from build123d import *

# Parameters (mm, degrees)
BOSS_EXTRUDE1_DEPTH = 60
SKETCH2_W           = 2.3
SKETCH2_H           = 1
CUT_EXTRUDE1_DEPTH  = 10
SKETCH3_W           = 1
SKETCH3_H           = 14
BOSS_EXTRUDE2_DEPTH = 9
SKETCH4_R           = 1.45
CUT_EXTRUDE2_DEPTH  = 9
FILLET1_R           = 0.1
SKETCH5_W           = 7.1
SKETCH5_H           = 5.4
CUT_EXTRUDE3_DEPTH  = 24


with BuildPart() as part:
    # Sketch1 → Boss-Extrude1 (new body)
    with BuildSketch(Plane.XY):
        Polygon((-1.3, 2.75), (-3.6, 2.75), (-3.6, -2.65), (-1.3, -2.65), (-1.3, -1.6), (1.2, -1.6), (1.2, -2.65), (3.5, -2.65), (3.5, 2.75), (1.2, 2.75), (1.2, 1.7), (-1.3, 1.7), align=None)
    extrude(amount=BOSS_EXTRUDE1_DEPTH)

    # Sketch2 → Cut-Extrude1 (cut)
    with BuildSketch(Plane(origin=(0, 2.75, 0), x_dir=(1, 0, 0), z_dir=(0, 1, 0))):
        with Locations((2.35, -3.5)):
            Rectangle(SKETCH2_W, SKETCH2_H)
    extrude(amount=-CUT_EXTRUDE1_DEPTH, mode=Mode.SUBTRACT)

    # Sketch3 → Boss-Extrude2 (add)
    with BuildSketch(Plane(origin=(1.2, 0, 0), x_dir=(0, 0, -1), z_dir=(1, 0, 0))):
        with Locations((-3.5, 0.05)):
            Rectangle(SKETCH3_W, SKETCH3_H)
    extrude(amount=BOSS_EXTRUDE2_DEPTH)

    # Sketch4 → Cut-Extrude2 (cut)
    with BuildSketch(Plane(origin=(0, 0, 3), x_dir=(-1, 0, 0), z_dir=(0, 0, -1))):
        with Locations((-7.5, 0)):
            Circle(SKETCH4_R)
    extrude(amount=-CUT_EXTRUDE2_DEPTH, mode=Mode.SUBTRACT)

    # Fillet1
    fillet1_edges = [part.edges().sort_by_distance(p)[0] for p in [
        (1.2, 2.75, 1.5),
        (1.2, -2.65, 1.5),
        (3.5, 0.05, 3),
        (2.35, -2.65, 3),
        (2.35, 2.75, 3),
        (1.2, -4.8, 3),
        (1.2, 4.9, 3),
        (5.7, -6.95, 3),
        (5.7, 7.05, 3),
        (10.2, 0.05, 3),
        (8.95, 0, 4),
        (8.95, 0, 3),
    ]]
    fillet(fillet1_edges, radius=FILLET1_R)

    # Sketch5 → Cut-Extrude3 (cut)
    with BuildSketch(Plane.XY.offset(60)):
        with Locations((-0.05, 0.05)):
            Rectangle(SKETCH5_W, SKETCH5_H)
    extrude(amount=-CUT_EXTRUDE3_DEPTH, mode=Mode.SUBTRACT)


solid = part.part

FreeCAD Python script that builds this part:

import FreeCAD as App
import Part
import Sketcher
from FreeCAD import Vector
Q = App.Units.Quantity


def edges_at(feature, points):
    """Names of the edges that pass closest to the given points."""
    edges = feature.Shape.Edges
    near = lambda p: min(range(len(edges)), key=lambda i: edges[i].distToShape(Part.Vertex(*p))[0])
    return sorted({f"Edge{near(p) + 1}" for p in points})

doc = App.newDocument("Part")
body = doc.addObject("PartDesign::Body", "Body")

sketch1 = body.newObject("Sketcher::SketchObject", "Sketch")
sketch1.AttachmentSupport = (doc.getObject("XY_Plane"), [""])
sketch1.MapMode = "FlatFace"
sketch1.addGeometry(Part.LineSegment(Vector(-1.3, 2.75, 0), Vector(-3.6, 2.75, 0)), False)
sketch1.addGeometry(Part.LineSegment(Vector(-3.6, 2.75, 0), Vector(-3.6, -2.65, 0)), False)
sketch1.addGeometry(Part.LineSegment(Vector(-3.6, -2.65, 0), Vector(-1.3, -2.65, 0)), False)
sketch1.addGeometry(Part.LineSegment(Vector(-1.3, -2.65, 0), Vector(-1.3, -1.6, 0)), False)
sketch1.addGeometry(Part.LineSegment(Vector(-1.3, -1.6, 0), Vector(1.2, -1.6, 0)), False)
sketch1.addGeometry(Part.LineSegment(Vector(1.2, -1.6, 0), Vector(1.2, -2.65, 0)), False)
sketch1.addGeometry(Part.LineSegment(Vector(1.2, -2.65, 0), Vector(3.5, -2.65, 0)), False)
sketch1.addGeometry(Part.LineSegment(Vector(3.5, -2.65, 0), Vector(3.5, 2.75, 0)), False)
sketch1.addGeometry(Part.LineSegment(Vector(3.5, 2.75, 0), Vector(1.2, 2.75, 0)), False)
sketch1.addGeometry(Part.LineSegment(Vector(1.2, 2.75, 0), Vector(1.2, 1.7, 0)), False)
sketch1.addGeometry(Part.LineSegment(Vector(1.2, 1.7, 0), Vector(-1.3, 1.7, 0)), False)
sketch1.addGeometry(Part.LineSegment(Vector(-1.3, 1.7, 0), Vector(-1.3, 2.75, 0)), False)
sketch1.addConstraint(Sketcher.Constraint("Coincident", 0, 2, 1, 1))
sketch1.addConstraint(Sketcher.Constraint("Coincident", 1, 2, 2, 1))
sketch1.addConstraint(Sketcher.Constraint("Coincident", 2, 2, 3, 1))
sketch1.addConstraint(Sketcher.Constraint("Coincident", 3, 2, 4, 1))
sketch1.addConstraint(Sketcher.Constraint("Coincident", 4, 2, 5, 1))
sketch1.addConstraint(Sketcher.Constraint("Coincident", 5, 2, 6, 1))
sketch1.addConstraint(Sketcher.Constraint("Coincident", 6, 2, 7, 1))
sketch1.addConstraint(Sketcher.Constraint("Coincident", 7, 2, 8, 1))
sketch1.addConstraint(Sketcher.Constraint("Coincident", 8, 2, 9, 1))
sketch1.addConstraint(Sketcher.Constraint("Coincident", 9, 2, 10, 1))
sketch1.addConstraint(Sketcher.Constraint("Coincident", 10, 2, 11, 1))
sketch1.addConstraint(Sketcher.Constraint("Coincident", 11, 2, 0, 1))
sketch1.addConstraint(Sketcher.Constraint("Horizontal", 0))
sketch1.addConstraint(Sketcher.Constraint("Vertical", 1))
sketch1.addConstraint(Sketcher.Constraint("Horizontal", 2))
sketch1.addConstraint(Sketcher.Constraint("Vertical", 3))
sketch1.addConstraint(Sketcher.Constraint("Horizontal", 4))
sketch1.addConstraint(Sketcher.Constraint("Vertical", 5))
sketch1.addConstraint(Sketcher.Constraint("Horizontal", 6))
sketch1.addConstraint(Sketcher.Constraint("Vertical", 7))
sketch1.addConstraint(Sketcher.Constraint("Horizontal", 8))
sketch1.addConstraint(Sketcher.Constraint("Vertical", 9))
sketch1.addConstraint(Sketcher.Constraint("Horizontal", 10))
sketch1.addConstraint(Sketcher.Constraint("Vertical", 11))
sketch1.addConstraint(Sketcher.Constraint("Horizontal", 2, 2, 5, 2))
sketch1.addConstraint(Sketcher.Constraint("Horizontal", 0, 2, 7, 2))
sketch1.addConstraint(Sketcher.Constraint("Vertical", 5, 2, 8, 2))
sketch1.addConstraint(Sketcher.Constraint("Vertical", 3, 2, 10, 2))
sketch1.addConstraint(Sketcher.Constraint("Equal", 2, 6))
sketch1.addConstraint(Sketcher.Constraint("Equal", 5, 9))
sketch1.addConstraint(Sketcher.Constraint("DistanceX", 0, 2, 0, 1, Q("2.3 mm")))
sketch1.addConstraint(Sketcher.Constraint("DistanceX", 4, 1, 4, 2, Q("2.5 mm")))
sketch1.addConstraint(Sketcher.Constraint("DistanceY", 1, 2, 1, 1, Q("5.4 mm")))
sketch1.addConstraint(Sketcher.Constraint("DistanceY", 3, 1, 3, 2, Q("1.05 mm")))
sketch1.addConstraint(Sketcher.Constraint("DistanceX", 0, 2, -1, 1, Q("3.6 mm")))
sketch1.addConstraint(Sketcher.Constraint("DistanceY", 3, 2, -1, 1, Q("1.6 mm")))
pad1 = body.newObject("PartDesign::Pad", "Pad")
pad1.Profile = sketch1
pad1.Length = 60

sketch2 = body.newObject("Sketcher::SketchObject", "Sketch001")
sketch2.AttachmentSupport = (doc.getObject("XZ_Plane"), [""])
sketch2.MapMode = "FlatFace"
sketch2.AttachmentOffset = App.Placement(Vector(0, 0, -2.75), App.Rotation())
sketch2.addGeometry(Part.LineSegment(Vector(1.2, 3, 0), Vector(1.2, 4, 0)), False)
sketch2.addGeometry(Part.LineSegment(Vector(1.2, 4, 0), Vector(3.5, 4, 0)), False)
sketch2.addGeometry(Part.LineSegment(Vector(3.5, 4, 0), Vector(3.5, 3, 0)), False)
sketch2.addGeometry(Part.LineSegment(Vector(3.5, 3, 0), Vector(1.2, 3, 0)), False)
sketch2.addConstraint(Sketcher.Constraint("Coincident", 0, 2, 1, 1))
sketch2.addConstraint(Sketcher.Constraint("Coincident", 1, 2, 2, 1))
sketch2.addConstraint(Sketcher.Constraint("Coincident", 2, 2, 3, 1))
sketch2.addConstraint(Sketcher.Constraint("Coincident", 3, 2, 0, 1))
sketch2.addConstraint(Sketcher.Constraint("Vertical", 0))
sketch2.addConstraint(Sketcher.Constraint("Horizontal", 1))
sketch2.addConstraint(Sketcher.Constraint("Vertical", 2))
sketch2.addConstraint(Sketcher.Constraint("Horizontal", 3))
sketch2.addConstraint(Sketcher.Constraint("DistanceY", 0, 1, 0, 2, Q("1 mm")))
sketch2.addConstraint(Sketcher.Constraint("DistanceX", 1, 1, 1, 2, Q("2.3 mm")))
sketch2.addConstraint(Sketcher.Constraint("DistanceY", -1, 1, 0, 2, Q("4 mm")))
sketch2.addConstraint(Sketcher.Constraint("DistanceX", -1, 1, 0, 2, Q("1.2 mm")))
pocket1 = body.newObject("PartDesign::Pocket", "Pocket")
pocket1.Profile = sketch2
pocket1.Length = 10
pocket1.Reversed = True

sketch3 = body.newObject("Sketcher::SketchObject", "Sketch002")
sketch3.AttachmentSupport = (doc.getObject("YZ_Plane"), [""])
sketch3.MapMode = "FlatFace"
sketch3.AttachmentOffset = App.Placement(Vector(0, 0, 1.2), App.Rotation())
sketch3.addGeometry(Part.LineSegment(Vector(7.05, 4, 0), Vector(-6.95, 4, 0)), False)
sketch3.addGeometry(Part.LineSegment(Vector(-6.95, 4, 0), Vector(-6.95, 3, 0)), False)
sketch3.addGeometry(Part.LineSegment(Vector(-6.95, 3, 0), Vector(7.05, 3, 0)), False)
sketch3.addGeometry(Part.LineSegment(Vector(7.05, 3, 0), Vector(7.05, 4, 0)), False)
sketch3.addConstraint(Sketcher.Constraint("Coincident", 0, 2, 1, 1))
sketch3.addConstraint(Sketcher.Constraint("Coincident", 1, 2, 2, 1))
sketch3.addConstraint(Sketcher.Constraint("Coincident", 2, 2, 3, 1))
sketch3.addConstraint(Sketcher.Constraint("Coincident", 3, 2, 0, 1))
sketch3.addConstraint(Sketcher.Constraint("Horizontal", 0))
sketch3.addConstraint(Sketcher.Constraint("Vertical", 1))
sketch3.addConstraint(Sketcher.Constraint("Horizontal", 2))
sketch3.addConstraint(Sketcher.Constraint("Vertical", 3))
sketch3.addConstraint(Sketcher.Constraint("DistanceX", 0, 2, 0, 1, Q("14 mm")))
sketch3.addConstraint(Sketcher.Constraint("DistanceY", 1, 2, 1, 1, Q("1 mm")))
sketch3.addConstraint(Sketcher.Constraint("DistanceY", -1, 1, 0, 2, Q("4 mm")))
sketch3.addConstraint(Sketcher.Constraint("DistanceX", 0, 2, -1, 1, Q("6.95 mm")))
pad2 = body.newObject("PartDesign::Pad", "Pad001")
pad2.Profile = sketch3
pad2.Length = 9

sketch4 = body.newObject("Sketcher::SketchObject", "Sketch003")
sketch4.AttachmentSupport = (doc.getObject("XY_Plane"), [""])
sketch4.MapMode = "FlatFace"
sketch4.AttachmentOffset = App.Placement(Vector(0, 0, 3), App.Rotation())
sketch4.addGeometry(Part.Circle(Vector(7.5, 0, 0), Vector(0, 0, 1), 1.45), False)
sketch4.addConstraint(Sketcher.Constraint("PointOnObject", 0, 3, -1))
sketch4.addConstraint(Sketcher.Constraint("Diameter", 0, Q("2.9 mm")))
sketch4.addConstraint(Sketcher.Constraint("DistanceX", -1, 1, 0, 3, Q("7.5 mm")))
pocket2 = body.newObject("PartDesign::Pocket", "Pocket001")
pocket2.Profile = sketch4
pocket2.Length = 9
pocket2.Reversed = True
doc.recompute()

fillet = body.newObject("PartDesign::Fillet", "Fillet")
fillet.Base = (pocket2, edges_at(pocket2, [
    (1.2, 2.75, 1.5),
    (1.2, -2.65, 1.5),
    (3.5, 0.05, 3),
    (2.35, -2.65, 3),
    (2.35, 2.75, 3),
    (1.2, -4.8, 3),
    (1.2, 4.9, 3),
    (5.7, -6.95, 3),
    (5.7, 7.05, 3),
    (10.2, 0.05, 3),
    (8.95, 0, 4),
    (8.95, 0, 3),
]))
fillet.Radius = 0.1

sketch5 = body.newObject("Sketcher::SketchObject", "Sketch004")
sketch5.AttachmentSupport = (doc.getObject("XY_Plane"), [""])
sketch5.MapMode = "FlatFace"
sketch5.AttachmentOffset = App.Placement(Vector(0, 0, 60), App.Rotation())
sketch5.addGeometry(Part.LineSegment(Vector(-3.6, 2.75, 0), Vector(-3.6, -2.65, 0)), False)
sketch5.addGeometry(Part.LineSegment(Vector(-3.6, -2.65, 0), Vector(3.5, -2.65, 0)), False)
sketch5.addGeometry(Part.LineSegment(Vector(3.5, -2.65, 0), Vector(3.5, 2.75, 0)), False)
sketch5.addGeometry(Part.LineSegment(Vector(3.5, 2.75, 0), Vector(-3.6, 2.75, 0)), False)
sketch5.addConstraint(Sketcher.Constraint("Coincident", 0, 2, 1, 1))
sketch5.addConstraint(Sketcher.Constraint("Coincident", 1, 2, 2, 1))
sketch5.addConstraint(Sketcher.Constraint("Coincident", 2, 2, 3, 1))
sketch5.addConstraint(Sketcher.Constraint("Coincident", 3, 2, 0, 1))
sketch5.addConstraint(Sketcher.Constraint("Vertical", 0))
sketch5.addConstraint(Sketcher.Constraint("Horizontal", 1))
sketch5.addConstraint(Sketcher.Constraint("Vertical", 2))
sketch5.addConstraint(Sketcher.Constraint("Horizontal", 3))
sketch5.addConstraint(Sketcher.Constraint("DistanceX", 1, 1, 1, 2, Q("7.1 mm")))
sketch5.addConstraint(Sketcher.Constraint("DistanceY", 0, 2, 0, 1, Q("5.4 mm")))
sketch5.addConstraint(Sketcher.Constraint("DistanceX", 0, 2, -1, 1, Q("3.6 mm")))
sketch5.addConstraint(Sketcher.Constraint("DistanceY", 0, 2, -1, 1, Q("2.65 mm")))
pocket3 = body.newObject("PartDesign::Pocket", "Pocket002")
pocket3.Profile = sketch5
pocket3.Length = 24

doc.recompute()
